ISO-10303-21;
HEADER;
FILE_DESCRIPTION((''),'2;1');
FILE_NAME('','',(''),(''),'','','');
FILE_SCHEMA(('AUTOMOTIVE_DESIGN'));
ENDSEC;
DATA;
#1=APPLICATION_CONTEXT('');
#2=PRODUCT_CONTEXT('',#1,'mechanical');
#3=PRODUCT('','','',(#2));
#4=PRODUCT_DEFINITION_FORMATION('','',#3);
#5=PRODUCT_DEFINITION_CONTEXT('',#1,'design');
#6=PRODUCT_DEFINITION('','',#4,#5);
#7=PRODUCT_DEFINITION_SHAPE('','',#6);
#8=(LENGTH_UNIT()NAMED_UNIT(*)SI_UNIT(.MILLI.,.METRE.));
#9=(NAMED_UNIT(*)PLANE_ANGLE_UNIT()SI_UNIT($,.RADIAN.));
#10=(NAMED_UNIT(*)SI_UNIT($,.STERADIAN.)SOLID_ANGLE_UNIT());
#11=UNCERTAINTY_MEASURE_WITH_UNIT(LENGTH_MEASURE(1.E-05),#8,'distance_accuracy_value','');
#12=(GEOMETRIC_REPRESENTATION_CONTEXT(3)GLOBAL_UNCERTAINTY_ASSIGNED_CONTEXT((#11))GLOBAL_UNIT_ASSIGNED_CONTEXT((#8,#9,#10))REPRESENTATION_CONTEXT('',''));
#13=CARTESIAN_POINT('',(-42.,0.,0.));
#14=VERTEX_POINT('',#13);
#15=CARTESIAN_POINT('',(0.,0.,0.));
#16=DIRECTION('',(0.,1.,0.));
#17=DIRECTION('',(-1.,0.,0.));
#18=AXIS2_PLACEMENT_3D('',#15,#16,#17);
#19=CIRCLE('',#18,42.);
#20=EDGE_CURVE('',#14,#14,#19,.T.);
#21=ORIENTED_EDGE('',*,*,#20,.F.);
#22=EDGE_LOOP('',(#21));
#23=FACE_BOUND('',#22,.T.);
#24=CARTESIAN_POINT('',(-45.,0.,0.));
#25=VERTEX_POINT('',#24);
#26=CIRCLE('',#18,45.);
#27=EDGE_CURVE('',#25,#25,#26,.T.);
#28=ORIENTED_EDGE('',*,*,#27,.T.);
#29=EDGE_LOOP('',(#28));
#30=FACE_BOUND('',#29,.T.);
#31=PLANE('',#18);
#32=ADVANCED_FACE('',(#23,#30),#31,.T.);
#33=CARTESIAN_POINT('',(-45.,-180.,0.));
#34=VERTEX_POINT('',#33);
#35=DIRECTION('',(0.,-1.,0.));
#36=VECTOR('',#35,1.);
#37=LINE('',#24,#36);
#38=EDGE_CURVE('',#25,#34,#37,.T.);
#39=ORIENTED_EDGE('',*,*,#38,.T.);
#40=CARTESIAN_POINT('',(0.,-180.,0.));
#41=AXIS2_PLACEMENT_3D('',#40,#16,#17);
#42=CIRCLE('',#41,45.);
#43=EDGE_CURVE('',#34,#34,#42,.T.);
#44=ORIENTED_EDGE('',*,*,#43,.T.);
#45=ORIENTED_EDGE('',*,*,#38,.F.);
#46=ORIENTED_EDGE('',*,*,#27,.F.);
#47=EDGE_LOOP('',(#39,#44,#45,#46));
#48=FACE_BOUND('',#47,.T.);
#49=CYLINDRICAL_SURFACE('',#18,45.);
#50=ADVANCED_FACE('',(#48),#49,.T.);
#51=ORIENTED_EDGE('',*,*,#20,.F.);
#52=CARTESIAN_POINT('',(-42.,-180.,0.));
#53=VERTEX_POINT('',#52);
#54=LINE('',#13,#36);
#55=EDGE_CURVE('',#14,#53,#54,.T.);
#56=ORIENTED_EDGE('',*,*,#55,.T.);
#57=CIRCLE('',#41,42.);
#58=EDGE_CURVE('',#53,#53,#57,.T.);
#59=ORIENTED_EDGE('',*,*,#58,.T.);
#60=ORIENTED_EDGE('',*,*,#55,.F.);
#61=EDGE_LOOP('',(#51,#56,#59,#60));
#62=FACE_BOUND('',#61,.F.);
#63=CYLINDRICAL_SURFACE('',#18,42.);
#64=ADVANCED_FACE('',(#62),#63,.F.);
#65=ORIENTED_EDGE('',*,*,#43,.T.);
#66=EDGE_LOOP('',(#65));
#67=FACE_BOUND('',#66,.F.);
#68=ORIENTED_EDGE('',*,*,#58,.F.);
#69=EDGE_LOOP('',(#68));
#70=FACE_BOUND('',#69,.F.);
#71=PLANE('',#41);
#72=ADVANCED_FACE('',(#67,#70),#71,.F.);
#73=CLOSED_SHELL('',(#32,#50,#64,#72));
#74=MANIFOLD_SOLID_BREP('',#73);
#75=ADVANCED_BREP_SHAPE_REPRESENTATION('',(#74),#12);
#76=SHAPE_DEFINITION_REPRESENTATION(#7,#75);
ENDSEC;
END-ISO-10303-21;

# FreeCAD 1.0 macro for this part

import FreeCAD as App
import Part
import Sketcher

V = App.Vector
Q = App.Units.Quantity

doc = App.newDocument("Part")
body = doc.addObject("PartDesign::Body", "Body")

# Sketch on XZ plane
sketch1 = body.newObject("Sketcher::SketchObject", "Sketch")
sketch1.AttachmentSupport = (doc.getObject("XZ_Plane"), [""])
sketch1.MapMode = "FlatFace"
sketch1.addGeometry(Part.Circle(V(0, 0, 0), V(0, 0, 1), 45), False)
sketch1.addGeometry(Part.Circle(V(0, 0, 0), V(0, 0, 1), 42), False)
sketch1.addConstraint(Sketcher.Constraint("Coincident", 0, 3, -1, 1))
sketch1.addConstraint(Sketcher.Constraint("Coincident", 1, 3, -1, 1))
sketch1.addConstraint(Sketcher.Constraint("Diameter", 0, Q("90 mm")))
sketch1.addConstraint(Sketcher.Constraint("Diameter", 1, Q("84 mm")))
pad1 = body.newObject("PartDesign::Pad", "Pad")
pad1.Profile = sketch1
pad1.Length = 180

doc.recompute()
